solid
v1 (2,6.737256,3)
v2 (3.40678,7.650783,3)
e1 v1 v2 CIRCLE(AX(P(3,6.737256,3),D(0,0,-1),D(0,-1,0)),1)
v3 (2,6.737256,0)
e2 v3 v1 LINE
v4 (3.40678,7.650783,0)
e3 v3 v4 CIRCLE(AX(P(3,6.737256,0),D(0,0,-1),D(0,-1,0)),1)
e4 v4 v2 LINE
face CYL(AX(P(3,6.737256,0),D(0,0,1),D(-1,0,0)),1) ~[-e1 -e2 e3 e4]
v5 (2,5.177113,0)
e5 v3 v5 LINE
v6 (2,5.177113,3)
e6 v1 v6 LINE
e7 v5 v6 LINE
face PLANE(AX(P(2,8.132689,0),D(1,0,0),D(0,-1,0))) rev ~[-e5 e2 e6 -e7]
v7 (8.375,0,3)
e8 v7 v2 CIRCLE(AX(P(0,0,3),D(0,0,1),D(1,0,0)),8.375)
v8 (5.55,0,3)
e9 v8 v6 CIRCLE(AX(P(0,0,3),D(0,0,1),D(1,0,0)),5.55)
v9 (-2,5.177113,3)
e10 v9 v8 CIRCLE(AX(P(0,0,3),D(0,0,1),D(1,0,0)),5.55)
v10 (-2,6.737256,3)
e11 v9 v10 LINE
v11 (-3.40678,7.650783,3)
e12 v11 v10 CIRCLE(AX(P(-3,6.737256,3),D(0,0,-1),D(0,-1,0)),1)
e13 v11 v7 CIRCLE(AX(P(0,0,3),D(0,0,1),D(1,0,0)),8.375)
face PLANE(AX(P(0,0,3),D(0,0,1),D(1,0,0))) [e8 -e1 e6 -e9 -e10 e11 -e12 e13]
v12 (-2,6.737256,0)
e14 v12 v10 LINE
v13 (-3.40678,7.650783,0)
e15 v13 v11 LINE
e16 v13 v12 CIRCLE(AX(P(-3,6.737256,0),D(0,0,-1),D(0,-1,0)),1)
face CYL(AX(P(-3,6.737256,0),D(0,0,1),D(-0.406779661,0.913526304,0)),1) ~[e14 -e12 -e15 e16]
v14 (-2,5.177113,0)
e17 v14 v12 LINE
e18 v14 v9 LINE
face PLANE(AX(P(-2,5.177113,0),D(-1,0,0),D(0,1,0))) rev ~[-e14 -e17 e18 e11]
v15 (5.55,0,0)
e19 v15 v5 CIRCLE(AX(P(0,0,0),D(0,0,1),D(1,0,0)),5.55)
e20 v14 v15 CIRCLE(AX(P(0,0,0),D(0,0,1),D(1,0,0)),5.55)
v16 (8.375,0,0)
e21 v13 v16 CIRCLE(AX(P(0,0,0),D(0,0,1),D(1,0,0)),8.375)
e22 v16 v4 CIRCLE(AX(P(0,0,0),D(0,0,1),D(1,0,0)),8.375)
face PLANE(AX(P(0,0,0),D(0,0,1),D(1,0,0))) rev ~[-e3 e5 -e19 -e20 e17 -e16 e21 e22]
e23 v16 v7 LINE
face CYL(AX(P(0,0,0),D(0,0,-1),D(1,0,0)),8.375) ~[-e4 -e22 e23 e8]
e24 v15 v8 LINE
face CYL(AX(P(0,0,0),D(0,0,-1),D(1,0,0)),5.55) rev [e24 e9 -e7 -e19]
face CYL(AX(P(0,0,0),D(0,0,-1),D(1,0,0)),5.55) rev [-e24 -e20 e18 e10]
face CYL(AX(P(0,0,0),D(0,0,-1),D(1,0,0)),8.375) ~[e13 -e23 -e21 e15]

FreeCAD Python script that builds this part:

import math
import FreeCAD as App
import Part
import Sketcher


def edges_at(feature, points):
    """Names of the edges that pass closest to the given points."""
    edges = feature.Shape.Edges
    near = lambda p: min(range(len(edges)), key=lambda i: edges[i].distToShape(Part.Vertex(*p))[0])
    return sorted({f"Edge{near(p) + 1}" for p in points})

doc = App.newDocument("Part")
body = doc.addObject("PartDesign::Body", "Body")

# Sketch on XY plane
sketch1 = body.newObject("Sketcher::SketchObject", "Sketch")
sketch1.AttachmentSupport = (doc.getObject("XY_Plane"), [""])
sketch1.MapMode = "FlatFace"
sketch1.addGeometry([
    Part.ArcOfCircle(Part.Circle(App.Vector(0, 0, 0), App.Vector(0, 0, 1), 5.5), math.radians(111), math.radians(429)),
    Part.LineSegment(App.Vector(-2, 5.2, 0), App.Vector(-2, 8.1, 0)),
    Part.ArcOfCircle(Part.Circle(App.Vector(0, 0, 0), App.Vector(0, 0, 1), 8.4), math.radians(104), math.radians(436)),
    Part.LineSegment(App.Vector(2, 8.1, 0), App.Vector(2, 5.2, 0)),
], False)
sketch1.addConstraint([
    Sketcher.Constraint("Coincident", 0, 1, 1, 1),
    Sketcher.Constraint("Coincident", 1, 2, 2, 1),
    Sketcher.Constraint("Coincident", 2, 2, 3, 1),
    Sketcher.Constraint("Coincident", 3, 2, 0, 2),
    Sketcher.Constraint("Vertical", 1),
    Sketcher.Constraint("Vertical", 3),
    Sketcher.Constraint("Coincident", 0, 3, -1, 1),
    Sketcher.Constraint("Coincident", 2, 3, -1, 1),
    Sketcher.Constraint("Horizontal", 1, 2, 2, 2),
    Sketcher.Constraint("Radius", 0, 5.55),
    Sketcher.Constraint("Radius", 2, 8.375),
    Sketcher.Constraint("DistanceX", 1, 2, 2, 2, 4.0),
])
pad1 = body.newObject("PartDesign::Pad", "Pad")
pad1.Profile = sketch1
pad1.Length = 3
doc.recompute()

fillet = body.newObject("PartDesign::Fillet", "Fillet")
fillet.Base = (pad1, edges_at(pad1, [(-2, 8.133, 1.5), (2, 8.133, 1.5)]))
fillet.Radius = 1

doc.recompute()
